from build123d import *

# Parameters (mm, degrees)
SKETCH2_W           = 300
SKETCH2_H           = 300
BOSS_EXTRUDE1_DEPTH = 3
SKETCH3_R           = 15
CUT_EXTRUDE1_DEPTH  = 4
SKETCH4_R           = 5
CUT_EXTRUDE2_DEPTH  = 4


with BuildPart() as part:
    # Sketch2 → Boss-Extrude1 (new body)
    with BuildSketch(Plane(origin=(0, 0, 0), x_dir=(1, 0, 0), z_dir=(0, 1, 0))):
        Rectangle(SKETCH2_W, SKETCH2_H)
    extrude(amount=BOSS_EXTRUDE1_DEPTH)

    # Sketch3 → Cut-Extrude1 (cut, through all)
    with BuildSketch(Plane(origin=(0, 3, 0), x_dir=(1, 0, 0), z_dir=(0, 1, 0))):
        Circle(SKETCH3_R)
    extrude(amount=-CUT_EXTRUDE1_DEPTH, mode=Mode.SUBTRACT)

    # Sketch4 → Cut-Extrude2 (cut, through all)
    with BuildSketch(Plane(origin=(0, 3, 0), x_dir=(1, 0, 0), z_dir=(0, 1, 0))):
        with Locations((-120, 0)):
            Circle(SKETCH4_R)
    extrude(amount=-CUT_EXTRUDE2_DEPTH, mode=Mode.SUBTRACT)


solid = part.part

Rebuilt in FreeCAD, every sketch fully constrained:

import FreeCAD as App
import Part
import Sketcher
from FreeCAD import Vector


def add_polygon(sketch, points):
    """Adds a closed chain of lines whose ends are joined by coincident constraints."""
    first, n = sketch.GeometryCount, len(points)
    for a, b in zip(points, points[1:] + points[:1]):
        sketch.addGeometry(Part.LineSegment(App.Vector(*a, 0), App.Vector(*b, 0)), False)
    for i in range(n):
        sketch.addConstraint(Sketcher.Constraint("Coincident", first + i, 2, first + (i + 1) % n, 1))

doc = App.newDocument("Part")
body = doc.addObject("PartDesign::Body", "Body")

# Sketch on XZ plane
sketch1 = doc.addObject("Sketcher::SketchObject", "Sketch")
body.addObject(sketch1)
sketch1.AttachmentSupport = (doc.XZ_Plane, [""])
sketch1.MapMode = "FlatFace"
add_polygon(sketch1, [(-150, -150), (-150, 150), (150, 150), (150, -150)])  # lines 0-3
sketch1.addConstraint([
    Sketcher.Constraint("Vertical", 0),
    Sketcher.Constraint("Horizontal", 1),
    Sketcher.Constraint("Vertical", 2),
    Sketcher.Constraint("Horizontal", 3),
    Sketcher.Constraint("Symmetric", 0, 2, 2, 2, -1, 1),
    Sketcher.Constraint("Equal", 3, 0),
    Sketcher.Constraint("DistanceX", 1, 1, 1, 2, 300.0),
])
pad1 = doc.addObject("PartDesign::Pad", "Pad")
body.addObject(pad1)
pad1.Profile = sketch1
pad1.Length = 3
pad1.Reversed = True

# Sketch on XZ plane
sketch2 = doc.addObject("Sketcher::SketchObject", "Sketch001")
body.addObject(sketch2)
sketch2.AttachmentSupport = (doc.XZ_Plane, [""])
sketch2.MapMode = "FlatFace"
sketch2.AttachmentOffset = App.Placement(Vector(0, 0, -3), App.Rotation())
sketch2.addGeometry(Part.Circle(Vector(0, 0, 0), Vector(0, 0, 1), 15), False)
sketch2.addConstraint([
    Sketcher.Constraint("Coincident", 0, 3, -1, 1),
    Sketcher.Constraint("Diameter", 0, 30.0),
])
pocket1 = doc.addObject("PartDesign::Pocket", "Pocket")
body.addObject(pocket1)
pocket1.Profile = sketch2
pocket1.Type = "ThroughAll"
pocket1.Reversed = True

# Sketch on XZ plane
sketch3 = doc.addObject("Sketcher::SketchObject", "Sketch002")
body.addObject(sketch3)
sketch3.AttachmentSupport = (doc.XZ_Plane, [""])
sketch3.MapMode = "FlatFace"
sketch3.AttachmentOffset = App.Placement(Vector(0, 0, -3), App.Rotation())
sketch3.addGeometry(Part.Circle(Vector(-120, 0, 0), Vector(0, 0, 1), 5), False)
sketch3.addConstraint([
    Sketcher.Constraint("PointOnObject", 0, 3, -1),
    Sketcher.Constraint("Diameter", 0, 10.0),
    Sketcher.Constraint("DistanceX", 0, 3, -1, 1, 120.0),
])
pocket2 = doc.addObject("PartDesign::Pocket", "Pocket001")
body.addObject(pocket2)
pocket2.Profile = sketch3
pocket2.Type = "ThroughAll"
pocket2.Reversed = True

doc.recompute()
